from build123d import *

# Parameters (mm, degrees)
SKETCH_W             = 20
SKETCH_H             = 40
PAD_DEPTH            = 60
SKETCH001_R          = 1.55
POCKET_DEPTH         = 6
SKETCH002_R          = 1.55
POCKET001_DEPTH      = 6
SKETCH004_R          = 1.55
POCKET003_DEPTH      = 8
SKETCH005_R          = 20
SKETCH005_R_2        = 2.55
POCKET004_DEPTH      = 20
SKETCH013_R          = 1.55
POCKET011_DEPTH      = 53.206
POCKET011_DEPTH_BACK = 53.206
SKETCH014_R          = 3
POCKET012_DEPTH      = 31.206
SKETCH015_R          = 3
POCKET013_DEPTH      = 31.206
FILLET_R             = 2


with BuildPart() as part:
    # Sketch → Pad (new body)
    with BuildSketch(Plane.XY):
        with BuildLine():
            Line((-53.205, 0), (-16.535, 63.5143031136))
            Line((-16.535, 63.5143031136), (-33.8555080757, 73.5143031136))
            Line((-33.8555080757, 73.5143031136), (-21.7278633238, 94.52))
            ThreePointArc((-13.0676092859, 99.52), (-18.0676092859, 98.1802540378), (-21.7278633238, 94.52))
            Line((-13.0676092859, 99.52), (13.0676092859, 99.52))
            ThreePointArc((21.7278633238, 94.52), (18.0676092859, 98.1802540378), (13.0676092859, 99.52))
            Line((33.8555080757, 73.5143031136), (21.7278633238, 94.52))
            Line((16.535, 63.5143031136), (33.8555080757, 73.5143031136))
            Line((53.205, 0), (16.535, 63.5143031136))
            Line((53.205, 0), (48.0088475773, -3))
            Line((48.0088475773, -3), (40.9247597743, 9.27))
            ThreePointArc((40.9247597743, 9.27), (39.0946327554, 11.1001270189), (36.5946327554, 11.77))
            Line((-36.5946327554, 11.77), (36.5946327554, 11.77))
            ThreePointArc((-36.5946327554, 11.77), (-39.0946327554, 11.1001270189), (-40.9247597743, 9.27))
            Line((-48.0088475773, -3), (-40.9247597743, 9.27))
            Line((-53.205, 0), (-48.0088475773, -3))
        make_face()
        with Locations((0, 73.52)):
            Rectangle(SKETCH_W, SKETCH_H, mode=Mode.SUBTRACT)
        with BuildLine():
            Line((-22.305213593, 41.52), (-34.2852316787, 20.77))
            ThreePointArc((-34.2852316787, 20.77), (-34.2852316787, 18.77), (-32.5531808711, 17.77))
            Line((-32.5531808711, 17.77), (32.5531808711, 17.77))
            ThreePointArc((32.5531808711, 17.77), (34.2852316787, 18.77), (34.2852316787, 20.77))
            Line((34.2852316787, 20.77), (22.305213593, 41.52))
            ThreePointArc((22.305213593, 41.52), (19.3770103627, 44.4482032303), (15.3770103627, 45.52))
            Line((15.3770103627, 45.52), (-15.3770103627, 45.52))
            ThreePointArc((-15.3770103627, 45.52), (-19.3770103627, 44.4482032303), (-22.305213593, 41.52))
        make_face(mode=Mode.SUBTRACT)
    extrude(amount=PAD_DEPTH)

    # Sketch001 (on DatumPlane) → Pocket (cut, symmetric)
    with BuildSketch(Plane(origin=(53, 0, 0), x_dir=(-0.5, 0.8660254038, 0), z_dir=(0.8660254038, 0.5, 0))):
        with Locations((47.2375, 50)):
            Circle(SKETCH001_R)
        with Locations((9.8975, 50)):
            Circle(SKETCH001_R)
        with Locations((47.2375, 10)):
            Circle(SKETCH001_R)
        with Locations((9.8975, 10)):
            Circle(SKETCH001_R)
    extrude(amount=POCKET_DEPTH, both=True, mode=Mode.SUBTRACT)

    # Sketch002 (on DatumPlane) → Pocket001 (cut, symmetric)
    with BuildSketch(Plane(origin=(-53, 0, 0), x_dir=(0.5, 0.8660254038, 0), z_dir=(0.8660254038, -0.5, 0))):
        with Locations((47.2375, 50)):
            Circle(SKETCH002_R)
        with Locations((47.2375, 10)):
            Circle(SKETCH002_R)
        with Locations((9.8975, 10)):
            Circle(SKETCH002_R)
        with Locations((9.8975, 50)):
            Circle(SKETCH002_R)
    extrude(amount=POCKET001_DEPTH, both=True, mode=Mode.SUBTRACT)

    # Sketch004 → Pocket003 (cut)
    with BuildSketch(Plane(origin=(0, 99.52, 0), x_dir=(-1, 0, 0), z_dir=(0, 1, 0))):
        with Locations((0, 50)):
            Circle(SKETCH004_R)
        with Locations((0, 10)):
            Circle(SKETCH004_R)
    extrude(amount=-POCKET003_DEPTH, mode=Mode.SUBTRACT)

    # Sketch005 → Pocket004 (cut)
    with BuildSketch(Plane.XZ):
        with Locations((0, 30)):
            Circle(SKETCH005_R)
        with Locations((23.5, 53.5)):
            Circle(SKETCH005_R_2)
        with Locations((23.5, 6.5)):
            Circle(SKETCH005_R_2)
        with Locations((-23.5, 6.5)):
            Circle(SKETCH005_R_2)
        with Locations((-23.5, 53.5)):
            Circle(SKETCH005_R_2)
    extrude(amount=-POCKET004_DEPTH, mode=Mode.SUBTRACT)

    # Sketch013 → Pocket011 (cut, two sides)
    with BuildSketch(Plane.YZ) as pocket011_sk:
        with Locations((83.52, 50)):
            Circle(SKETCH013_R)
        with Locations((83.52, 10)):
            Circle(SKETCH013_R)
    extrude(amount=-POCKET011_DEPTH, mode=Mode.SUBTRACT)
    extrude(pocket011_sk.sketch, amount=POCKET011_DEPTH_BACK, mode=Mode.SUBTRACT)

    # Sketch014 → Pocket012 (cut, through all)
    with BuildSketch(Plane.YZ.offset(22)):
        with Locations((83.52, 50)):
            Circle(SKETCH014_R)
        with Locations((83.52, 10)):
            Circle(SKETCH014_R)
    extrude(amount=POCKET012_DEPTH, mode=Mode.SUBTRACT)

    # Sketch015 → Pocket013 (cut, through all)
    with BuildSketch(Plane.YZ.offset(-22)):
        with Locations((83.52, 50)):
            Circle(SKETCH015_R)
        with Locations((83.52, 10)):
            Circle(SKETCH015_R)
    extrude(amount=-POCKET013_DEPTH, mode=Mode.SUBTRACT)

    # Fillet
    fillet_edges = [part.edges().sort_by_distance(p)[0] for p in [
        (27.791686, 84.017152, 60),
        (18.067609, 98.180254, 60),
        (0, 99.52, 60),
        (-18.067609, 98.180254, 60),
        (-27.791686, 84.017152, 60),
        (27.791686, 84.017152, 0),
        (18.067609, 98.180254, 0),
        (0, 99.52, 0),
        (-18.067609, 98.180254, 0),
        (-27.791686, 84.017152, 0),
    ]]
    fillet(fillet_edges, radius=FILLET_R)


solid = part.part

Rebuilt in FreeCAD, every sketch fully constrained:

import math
import FreeCAD as App
import Part
import Sketcher
from FreeCAD import Vector
Q = App.Units.Quantity


def edges_at(feature, points):
    """Names of the edges that pass closest to the given points."""
    edges = feature.Shape.Edges
    near = lambda p: min(range(len(edges)), key=lambda i: edges[i].distToShape(Part.Vertex(*p))[0])
    return sorted({f"Edge{near(p) + 1}" for p in points})


def add_polygon(sketch, points):
    """Adds a closed chain of lines whose ends are joined by coincident constraints."""
    first, n = sketch.GeometryCount, len(points)
    for a, b in zip(points, points[1:] + points[:1]):
        sketch.addGeometry(Part.LineSegment(App.Vector(*a, 0), App.Vector(*b, 0)), False)
    for i in range(n):
        sketch.addConstraint(Sketcher.Constraint("Coincident", first + i, 2, first + (i + 1) % n, 1))

doc = App.newDocument("Part")
body = doc.addObject("PartDesign::Body", "Body")

# Sketch on XY plane
sketch1 = body.newObject("Sketcher::SketchObject", "Sketch")
sketch1.AttachmentSupport = (doc.getObject("XY_Plane"), [""])
sketch1.MapMode = "FlatFace"
sketch1.addGeometry(Part.LineSegment(Vector(-16.5, 63.5, 0), Vector(-53.2, 0, 0)), False)  # 0
sketch1.addGeometry(Part.LineSegment(Vector(-53.2, 0, 0), Vector(-48, -3, 0)), False)  # 1
sketch1.addGeometry(Part.LineSegment(Vector(-48, -3, 0), Vector(-40.9, 9.3, 0)), False)  # 2
sketch1.addGeometry(Part.ArcOfCircle(Part.Circle(Vector(-36.6, 6.8, 0), Vector(0, 0, 1), 5), math.radians(90), math.radians(150)), False)  # 3
sketch1.addGeometry(Part.LineSegment(Vector(-36.6, 11.8, 0), Vector(36.6, 11.8, 0)), False)  # 4
sketch1.addGeometry(Part.ArcOfCircle(Part.Circle(Vector(36.6, 6.8, 0), Vector(0, 0, 1), 5), math.radians(30), math.radians(90)), False)  # 5
sketch1.addGeometry(Part.LineSegment(Vector(40.9, 9.3, 0), Vector(48, -3, 0)), False)  # 6
sketch1.addGeometry(Part.LineSegment(Vector(48, -3, 0), Vector(53.2, 0, 0)), False)  # 7
sketch1.addGeometry(Part.LineSegment(Vector(53.2, 0, 0), Vector(16.5, 63.5, 0)), False)  # 8
sketch1.addGeometry(Part.LineSegment(Vector(16.5, 63.5, 0), Vector(33.9, 73.5, 0)), False)  # 9
sketch1.addGeometry(Part.LineSegment(Vector(33.9, 73.5, 0), Vector(21.7, 94.5, 0)), False)  # 10
sketch1.addGeometry(Part.ArcOfCircle(Part.Circle(Vector(13.1, 89.5, 0), Vector(0, 0, 1), 10), math.radians(30), math.radians(90)), False)  # 11
sketch1.addGeometry(Part.LineSegment(Vector(13.1, 99.5, 0), Vector(-13.1, 99.5, 0)), False)  # 12
sketch1.addGeometry(Part.ArcOfCircle(Part.Circle(Vector(-13.1, 89.5, 0), Vector(0, 0, 1), 10), math.radians(90), math.radians(150)), False)  # 13
sketch1.addGeometry(Part.LineSegment(Vector(-21.7, 94.5, 0), Vector(-33.9, 73.5, 0)), False)  # 14
sketch1.addGeometry(Part.LineSegment(Vector(-33.9, 73.5, 0), Vector(-16.5, 63.5, 0)), False)  # 15
sketch1.addGeometry(Part.ArcOfCircle(Part.Circle(Vector(-15.4, 37.5, 0), Vector(0, 0, 1), 8), math.radians(90), math.radians(150)), False)  # 16
sketch1.addGeometry(Part.LineSegment(Vector(-15.4, 45.5, 0), Vector(15.4, 45.5, 0)), False)  # 17
sketch1.addGeometry(Part.ArcOfCircle(Part.Circle(Vector(15.4, 37.5, 0), Vector(0, 0, 1), 8), math.radians(30), math.radians(90)), False)  # 18
sketch1.addGeometry(Part.LineSegment(Vector(22.3, 41.5, 0), Vector(34.3, 20.8, 0)), False)  # 19
sketch1.addGeometry(Part.ArcOfCircle(Part.Circle(Vector(32.6, 19.8, 0), Vector(0, 0, 1), 2), math.radians(-90), math.radians(30)), False)  # 20
sketch1.addGeometry(Part.LineSegment(Vector(32.6, 17.8, 0), Vector(-32.6, 17.8, 0)), False)  # 21
sketch1.addGeometry(Part.ArcOfCircle(Part.Circle(Vector(-32.6, 19.8, 0), Vector(0, 0, 1), 2), math.radians(150), math.radians(270)), False)  # 22
sketch1.addGeometry(Part.LineSegment(Vector(-34.3, 20.8, 0), Vector(-22.3, 41.5, 0)), False)  # 23
add_polygon(sketch1, [(-10, 53.5), (-10, 93.5), (10, 93.5), (10, 53.5)])  # lines 24-27
sketch1.addConstraint([
    Sketcher.Constraint("Coincident", 0, 2, 1, 1),
    Sketcher.Constraint("Coincident", 1, 2, 2, 1),
    Sketcher.Constraint("Tangent", 2, 2, 3, 2),
    Sketcher.Constraint("Tangent", 3, 1, 4, 1),
    Sketcher.Constraint("Tangent", 4, 2, 5, 2),
    Sketcher.Constraint("Tangent", 5, 1, 6, 1),
    Sketcher.Constraint("Coincident", 6, 2, 7, 1),
    Sketcher.Constraint("Coincident", 7, 2, 8, 1),
    Sketcher.Constraint("Coincident", 8, 2, 9, 1),
    Sketcher.Constraint("Coincident", 9, 2, 10, 1),
    Sketcher.Constraint("Tangent", 10, 2, 11, 1),
    Sketcher.Constraint("Tangent", 11, 2, 12, 1),
    Sketcher.Constraint("Tangent", 12, 2, 13, 1),
    Sketcher.Constraint("Tangent", 13, 2, 14, 1),
    Sketcher.Constraint("Coincident", 14, 2, 15, 1),
    Sketcher.Constraint("Coincident", 15, 2, 0, 1),
    Sketcher.Constraint("Tangent", 16, 1, 17, 1),
    Sketcher.Constraint("Tangent", 17, 2, 18, 2),
    Sketcher.Constraint("Tangent", 18, 1, 19, 1),
    Sketcher.Constraint("Tangent", 19, 2, 20, 2),
    Sketcher.Constraint("Tangent", 20, 1, 21, 1),
    Sketcher.Constraint("Tangent", 21, 2, 22, 2),
    Sketcher.Constraint("Tangent", 22, 1, 23, 1),
    Sketcher.Constraint("Tangent", 23, 2, 16, 2),
    Sketcher.Constraint("Horizontal", 4),
    Sketcher.Constraint("Horizontal", 12),
    Sketcher.Constraint("Horizontal", 17),
    Sketcher.Constraint("Horizontal", 21),
    Sketcher.Constraint("Vertical", 24),
    Sketcher.Constraint("Horizontal", 25),
    Sketcher.Constraint("Vertical", 26),
    Sketcher.Constraint("Horizontal", 27),
    Sketcher.Constraint("Equal", 3, 5),
    Sketcher.Constraint("Equal", 11, 13),
    Sketcher.Constraint("Equal", 16, 18),
    Sketcher.Constraint("Equal", 20, 22),
    Sketcher.Constraint("Symmetric", 0, 2, 7, 2, -1, 1),
    Sketcher.Constraint("Symmetric", 2, 2, 5, 1, -2),
    Sketcher.Constraint("Symmetric", 10, 2, 13, 2, -2),
    Sketcher.Constraint("Symmetric", 8, 2, 15, 2, -2),
    Sketcher.Constraint("Symmetric", 19, 2, 22, 1, -2),
    Sketcher.Constraint("PointOnObject", 0, 2, -1),
    Sketcher.Constraint("Perpendicular", 0, 1),
    Sketcher.Constraint("Perpendicular", 1, 2),
    Sketcher.Constraint("Perpendicular", 6, 7),
    Sketcher.Constraint("Perpendicular", 8, 9),
    Sketcher.Constraint("Perpendicular", 9, 10),
    Sketcher.Constraint("Perpendicular", 14, 15),
    Sketcher.Constraint("Parallel", 10, 19),
    Sketcher.Constraint("Radius", 3, 5.0),
    Sketcher.Constraint("Radius", 11, 10.0),
    Sketcher.Constraint("Radius", 16, 8.0),
    Sketcher.Constraint("Radius", 20, 2.0),
    Sketcher.Constraint("DistanceX", 25, 1, 25, 2, 20.0),
    Sketcher.Constraint("DistanceY", 24, 1, 24, 2, 40.0),
    Sketcher.Constraint("Angle", 0, Q("-120 deg")),
    Sketcher.Constraint("Distance", 1, 6.0),
    Sketcher.Constraint("Distance", 9, 20.0),
    Sketcher.Constraint("DistanceX", 24, 2, -1, 1, 10.0),
    Sketcher.Constraint("DistanceY", 16, 3, 13, 3, 52.0),
    Sketcher.Constraint("DistanceY", 5, 3, 20, 3, 13.0),
    Sketcher.Constraint("DistanceY", 13, 3, 24, 2, 4.0),
    Sketcher.Constraint("Distance", 0, 73.34),
    Sketcher.Constraint("DistanceY", -1, 1, 3, 3, 6.77),
    Sketcher.Constraint("DistanceY", -1, 1, 11, 3, 89.52),
    Sketcher.Constraint("DistanceX", 15, 2, 8, 2, 33.07),
    Sketcher.Constraint("DistanceX", 17, 1, 17, 2, 30.754021),
])
pad1 = body.newObject("PartDesign::Pad", "Pad")
pad1.Profile = sketch1
pad1.Length = 60

# Sketch on an angled plane
sketch2 = body.newObject("Sketcher::SketchObject", "Sketch001")
sketch2.Placement = App.Placement(Vector(53, 0, 0), App.Rotation(Vector(-0.5, 0.866025404, 0), Vector(0, 0, 1), Vector(0.866025404, 0.5, 0), "ZXY"))
sketch2.addGeometry([
    Part.Circle(Vector(47.2, 50, 0), Vector(0, 0, 1), 1.6),
    Part.Circle(Vector(9.9, 50, 0), Vector(0, 0, 1), 1.6),
    Part.Circle(Vector(47.2, 10, 0), Vector(0, 0, 1), 1.6),
    Part.Circle(Vector(9.9, 10, 0), Vector(0, 0, 1), 1.6),
], False)
sketch2.addConstraint([
    Sketcher.Constraint("Equal", 0, 1),
    Sketcher.Constraint("Equal", 1, 2),
    Sketcher.Constraint("Equal", 2, 3),
    Sketcher.Constraint("Horizontal", 0, 3, 1, 3),
    Sketcher.Constraint("Horizontal", 2, 3, 3, 3),
    Sketcher.Constraint("Vertical", 0, 3, 2, 3),
    Sketcher.Constraint("Vertical", 1, 3, 3, 3),
    Sketcher.Constraint("Diameter", 0, 3.1),
    Sketcher.Constraint("DistanceY", -1, 1, 0, 3, 50.0),
    Sketcher.Constraint("DistanceY", -1, 1, 2, 3, 10.0),
    Sketcher.Constraint("DistanceX", 1, 3, 0, 3, 37.34),
    Sketcher.Constraint("DistanceX", -1, 1, 0, 3, 47.2375),
])
pocket1 = body.newObject("PartDesign::Pocket", "Pocket")
pocket1.Profile = sketch2
pocket1.Length = 12
pocket1.Midplane = True

# Sketch on an angled plane
sketch3 = body.newObject("Sketcher::SketchObject", "Sketch002")
sketch3.Placement = App.Placement(Vector(-53, 0, 0), App.Rotation(Vector(0.5, 0.866025404, 0), Vector(0, 0, 1), Vector(0.866025404, -0.5, 0), "ZXY"))
sketch3.addGeometry([
    Part.Circle(Vector(47.2, 50, 0), Vector(0, 0, 1), 1.6),
    Part.Circle(Vector(47.2, 10, 0), Vector(0, 0, 1), 1.6),
    Part.Circle(Vector(9.9, 10, 0), Vector(0, 0, 1), 1.6),
    Part.Circle(Vector(9.9, 50, 0), Vector(0, 0, 1), 1.6),
], False)
sketch3.addConstraint([
    Sketcher.Constraint("Equal", 0, 1),
    Sketcher.Constraint("Equal", 1, 2),
    Sketcher.Constraint("Equal", 2, 3),
    Sketcher.Constraint("Horizontal", 1, 3, 2, 3),
    Sketcher.Constraint("Horizontal", 0, 3, 3, 3),
    Sketcher.Constraint("Vertical", 0, 3, 1, 3),
    Sketcher.Constraint("Vertical", 2, 3, 3, 3),
    Sketcher.Constraint("Diameter", 0, 3.1),
    Sketcher.Constraint("DistanceY", -1, 1, 0, 3, 50.0),
    Sketcher.Constraint("DistanceY", -1, 1, 1, 3, 10.0),
    Sketcher.Constraint("DistanceX", 2, 3, 1, 3, 37.34),
    Sketcher.Constraint("DistanceX", -1, 1, 0, 3, 47.2375),
])
pocket2 = body.newObject("PartDesign::Pocket", "Pocket001")
pocket2.Profile = sketch3
pocket2.Length = 12
pocket2.Midplane = True

# Sketch on XZ plane
sketch4 = body.newObject("Sketcher::SketchObject", "Sketch003")
sketch4.AttachmentSupport = (doc.getObject("XZ_Plane"), [""])
sketch4.MapMode = "FlatFace"
sketch4.AttachmentOffset = App.Placement(Vector(0, 0, -99.52), App.Rotation())
sketch4.addGeometry([
    Part.Circle(Vector(0, 50, 0), Vector(0, 0, 1), 1.6),
    Part.Circle(Vector(0, 10, 0), Vector(0, 0, 1), 1.6),
], False)
sketch4.addConstraint([
    Sketcher.Constraint("Equal", 0, 1),
    Sketcher.Constraint("PointOnObject", 0, 3, -2),
    Sketcher.Constraint("PointOnObject", 1, 3, -2),
    Sketcher.Constraint("Diameter", 0, 3.1),
    Sketcher.Constraint("DistanceY", -1, 1, 0, 3, 50.0),
    Sketcher.Constraint("DistanceY", -1, 1, 1, 3, 10.0),
])
pocket3 = body.newObject("PartDesign::Pocket", "Pocket002")
pocket3.Profile = sketch4
pocket3.Length = 8
pocket3.Reversed = True

# Sketch on XZ plane
sketch5 = body.newObject("Sketcher::SketchObject", "Sketch004")
sketch5.AttachmentSupport = (doc.getObject("XZ_Plane"), [""])
sketch5.MapMode = "FlatFace"
sketch5.addGeometry([
    Part.Circle(Vector(0, 30, 0), Vector(0, 0, 1), 20),  # 0
    Part.Circle(Vector(23.5, 53.5, 0), Vector(0, 0, 1), 2.5),  # 1
    Part.Circle(Vector(23.5, 6.5, 0), Vector(0, 0, 1), 2.5),  # 2
    Part.Circle(Vector(-23.5, 6.5, 0), Vector(0, 0, 1), 2.5),  # 3
    Part.Circle(Vector(-23.5, 53.5, 0), Vector(0, 0, 1), 2.5),  # 4
], False)
sketch5.addConstraint([
    Sketcher.Constraint("Equal", 1, 2),
    Sketcher.Constraint("Equal", 2, 3),
    Sketcher.Constraint("Equal", 3, 4),
    Sketcher.Constraint("Symmetric", 2, 3, 3, 3, -2),
    Sketcher.Constraint("Symmetric", 1, 3, 4, 3, -2),
    Sketcher.Constraint("PointOnObject", 0, 3, -2),
    Sketcher.Constraint("Vertical", 1, 3, 2, 3),
    Sketcher.Constraint("Diameter", 0, 40.0),
    Sketcher.Constraint("Diameter", 1, 5.1),
    Sketcher.Constraint("DistanceY", -1, 1, 0, 3, 30.0),
    Sketcher.Constraint("DistanceY", 2, 3, 1, 3, 47.0),
    Sketcher.Constraint("DistanceX", 3, 3, 2, 3, 47.0),
    Sketcher.Constraint("DistanceY", -1, 1, 1, 3, 53.5),
])
pocket4 = body.newObject("PartDesign::Pocket", "Pocket003")
pocket4.Profile = sketch5
pocket4.Length = 20

# Sketch on YZ plane
sketch6 = body.newObject("Sketcher::SketchObject", "Sketch005")
sketch6.AttachmentSupport = (doc.getObject("YZ_Plane"), [""])
sketch6.MapMode = "FlatFace"
sketch6.addGeometry([
    Part.Circle(Vector(83.5, 50, 0), Vector(0, 0, 1), 1.6),
    Part.Circle(Vector(83.5, 10, 0), Vector(0, 0, 1), 1.6),
], False)
sketch6.addConstraint([
    Sketcher.Constraint("Equal", 0, 1),
    Sketcher.Constraint("Vertical", 0, 3, 1, 3),
    Sketcher.Constraint("Diameter", 0, 3.1),
    Sketcher.Constraint("DistanceY", -1, 1, 0, 3, 50.0),
    Sketcher.Constraint("DistanceY", -1, 1, 1, 3, 10.0),
    Sketcher.Constraint("DistanceX", -1, 1, 0, 3, 83.52),
])
pocket5 = body.newObject("PartDesign::Pocket", "Pocket004")
pocket5.Profile = sketch6
pocket5.Type = "ThroughAll"
pocket5.Midplane = True

# Sketch on YZ plane
sketch7 = body.newObject("Sketcher::SketchObject", "Sketch006")
sketch7.AttachmentSupport = (doc.getObject("YZ_Plane"), [""])
sketch7.MapMode = "FlatFace"
sketch7.AttachmentOffset = App.Placement(Vector(0, 0, 22), App.Rotation())
sketch7.addGeometry([
    Part.Circle(Vector(83.5, 50, 0), Vector(0, 0, 1), 3),
    Part.Circle(Vector(83.5, 10, 0), Vector(0, 0, 1), 3),
], False)
sketch7.addConstraint([
    Sketcher.Constraint("Equal", 0, 1),
    Sketcher.Constraint("Vertical", 0, 3, 1, 3),
    Sketcher.Constraint("Diameter", 0, 6.0),
    Sketcher.Constraint("DistanceY", -1, 1, 0, 3, 50.0),
    Sketcher.Constraint("DistanceY", -1, 1, 1, 3, 10.0),
    Sketcher.Constraint("DistanceX", -1, 1, 0, 3, 83.52),
])
pocket6 = body.newObject("PartDesign::Pocket", "Pocket005")
pocket6.Profile = sketch7
pocket6.Type = "ThroughAll"
pocket6.Reversed = True

# Sketch on YZ plane
sketch8 = body.newObject("Sketcher::SketchObject", "Sketch007")
sketch8.AttachmentSupport = (doc.getObject("YZ_Plane"), [""])
sketch8.MapMode = "FlatFace"
sketch8.AttachmentOffset = App.Placement(Vector(0, 0, -22), App.Rotation())
sketch8.addGeometry([
    Part.Circle(Vector(83.5, 50, 0), Vector(0, 0, 1), 3),
    Part.Circle(Vector(83.5, 10, 0), Vector(0, 0, 1), 3),
], False)
sketch8.addConstraint([
    Sketcher.Constraint("Equal", 0, 1),
    Sketcher.Constraint("Vertical", 0, 3, 1, 3),
    Sketcher.Constraint("Diameter", 0, 6.0),
    Sketcher.Constraint("DistanceY", -1, 1, 0, 3, 50.0),
    Sketcher.Constraint("DistanceY", -1, 1, 1, 3, 10.0),
    Sketcher.Constraint("DistanceX", -1, 1, 0, 3, 83.52),
])
pocket7 = body.newObject("PartDesign::Pocket", "Pocket006")
pocket7.Profile = sketch8
pocket7.Type = "ThroughAll"
doc.recompute()

fillet = body.newObject("PartDesign::Fillet", "Fillet")
fillet.Base = (pocket7, edges_at(pocket7, [
    (27.792, 84.017, 60),
    (18.068, 98.18, 60),
    (0, 99.52, 60),
    (-18.068, 98.18, 60),
    (-27.792, 84.017, 60),
    (27.792, 84.017, 0),
    (18.068, 98.18, 0),
    (0, 99.52, 0),
    (-18.068, 98.18, 0),
    (-27.792, 84.017, 0),
]))
fillet.Radius = 2

doc.recompute()
